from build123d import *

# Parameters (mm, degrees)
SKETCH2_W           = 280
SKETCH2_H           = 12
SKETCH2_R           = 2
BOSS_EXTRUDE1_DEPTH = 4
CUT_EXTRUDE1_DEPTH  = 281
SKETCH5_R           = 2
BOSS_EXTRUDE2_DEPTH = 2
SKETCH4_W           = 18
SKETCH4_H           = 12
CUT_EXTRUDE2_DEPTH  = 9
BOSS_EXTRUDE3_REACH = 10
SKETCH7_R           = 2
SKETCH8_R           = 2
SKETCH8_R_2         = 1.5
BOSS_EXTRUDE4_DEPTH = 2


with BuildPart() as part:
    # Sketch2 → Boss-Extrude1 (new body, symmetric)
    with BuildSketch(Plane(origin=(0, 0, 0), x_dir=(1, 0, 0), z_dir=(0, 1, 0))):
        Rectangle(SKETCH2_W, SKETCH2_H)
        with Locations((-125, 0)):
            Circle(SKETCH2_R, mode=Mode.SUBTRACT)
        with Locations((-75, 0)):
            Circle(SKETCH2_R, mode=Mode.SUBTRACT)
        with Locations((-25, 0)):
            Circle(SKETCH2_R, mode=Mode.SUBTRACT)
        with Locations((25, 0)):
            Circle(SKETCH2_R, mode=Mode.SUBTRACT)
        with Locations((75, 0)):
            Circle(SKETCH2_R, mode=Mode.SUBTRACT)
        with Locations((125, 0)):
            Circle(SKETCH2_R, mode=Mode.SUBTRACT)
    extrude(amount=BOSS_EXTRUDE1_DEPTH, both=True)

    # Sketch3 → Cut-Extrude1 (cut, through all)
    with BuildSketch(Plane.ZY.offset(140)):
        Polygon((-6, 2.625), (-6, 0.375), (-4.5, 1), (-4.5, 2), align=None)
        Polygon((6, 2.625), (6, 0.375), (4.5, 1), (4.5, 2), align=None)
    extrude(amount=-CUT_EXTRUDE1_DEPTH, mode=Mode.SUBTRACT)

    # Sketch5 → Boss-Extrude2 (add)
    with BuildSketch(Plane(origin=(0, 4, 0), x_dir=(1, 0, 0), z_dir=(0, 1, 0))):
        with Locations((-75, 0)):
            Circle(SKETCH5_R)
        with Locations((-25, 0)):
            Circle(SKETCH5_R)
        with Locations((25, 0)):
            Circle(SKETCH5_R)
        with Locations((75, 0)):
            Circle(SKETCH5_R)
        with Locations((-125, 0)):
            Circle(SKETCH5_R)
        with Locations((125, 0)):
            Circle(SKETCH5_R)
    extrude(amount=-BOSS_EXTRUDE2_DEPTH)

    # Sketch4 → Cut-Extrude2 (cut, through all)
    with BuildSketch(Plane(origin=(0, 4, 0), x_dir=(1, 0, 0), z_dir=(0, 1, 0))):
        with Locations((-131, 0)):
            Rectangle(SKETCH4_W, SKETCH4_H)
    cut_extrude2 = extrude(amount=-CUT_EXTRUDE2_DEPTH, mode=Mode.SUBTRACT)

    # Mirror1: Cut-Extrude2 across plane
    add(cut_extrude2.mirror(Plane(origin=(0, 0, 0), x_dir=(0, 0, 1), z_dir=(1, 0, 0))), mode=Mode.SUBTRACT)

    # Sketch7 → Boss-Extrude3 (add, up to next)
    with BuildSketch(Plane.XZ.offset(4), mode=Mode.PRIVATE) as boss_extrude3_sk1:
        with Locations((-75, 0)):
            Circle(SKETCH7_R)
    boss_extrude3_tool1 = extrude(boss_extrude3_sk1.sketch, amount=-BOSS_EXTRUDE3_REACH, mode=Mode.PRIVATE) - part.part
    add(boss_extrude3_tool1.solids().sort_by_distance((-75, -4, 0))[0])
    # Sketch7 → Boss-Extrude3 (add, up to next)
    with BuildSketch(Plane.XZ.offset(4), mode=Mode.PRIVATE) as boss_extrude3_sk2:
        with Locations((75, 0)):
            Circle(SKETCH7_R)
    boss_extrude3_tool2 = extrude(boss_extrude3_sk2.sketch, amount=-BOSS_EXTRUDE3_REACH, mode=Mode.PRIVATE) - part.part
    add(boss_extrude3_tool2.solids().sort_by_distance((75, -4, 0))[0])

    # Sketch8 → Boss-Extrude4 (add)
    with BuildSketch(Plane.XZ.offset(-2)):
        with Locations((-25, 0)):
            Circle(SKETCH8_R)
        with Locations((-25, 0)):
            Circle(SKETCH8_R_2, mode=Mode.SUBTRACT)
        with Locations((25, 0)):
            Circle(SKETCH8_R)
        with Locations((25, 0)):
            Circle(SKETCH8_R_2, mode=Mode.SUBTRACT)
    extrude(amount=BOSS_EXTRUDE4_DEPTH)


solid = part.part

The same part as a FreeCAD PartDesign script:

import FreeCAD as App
import Part
import Sketcher

V = App.Vector
Q = App.Units.Quantity

doc = App.newDocument("Part")
body = doc.addObject("PartDesign::Body", "Body")

sketch1 = body.newObject("Sketcher::SketchObject", "Sketch")
sketch1.AttachmentSupport = (doc.getObject("XZ_Plane"), [""])
sketch1.MapMode = "FlatFace"
sketch1.addGeometry([
    Part.LineSegment(V(-140, -6, 0), V(-140, 6, 0)),
    Part.LineSegment(V(-140, 6, 0), V(140, 6, 0)),
    Part.LineSegment(V(140, 6, 0), V(140, -6, 0)),
    Part.LineSegment(V(140, -6, 0), V(-140, -6, 0)),
    Part.Circle(V(-125, 0, 0), V(0, 0, 1), 2),
    Part.Circle(V(-75, 0, 0), V(0, 0, 1), 2),
    Part.Circle(V(-25, 0, 0), V(0, 0, 1), 2),
    Part.Circle(V(25, 0, 0), V(0, 0, 1), 2),
    Part.Circle(V(75, 0, 0), V(0, 0, 1), 2),
    Part.Circle(V(125, 0, 0), V(0, 0, 1), 2),
], False)
sketch1.addConstraint([
    Sketcher.Constraint("Coincident", 0, 2, 1, 1),
    Sketcher.Constraint("Coincident", 1, 2, 2, 1),
    Sketcher.Constraint("Coincident", 2, 2, 3, 1),
    Sketcher.Constraint("Coincident", 3, 2, 0, 1),
    Sketcher.Constraint("Vertical", 0),
    Sketcher.Constraint("Horizontal", 1),
    Sketcher.Constraint("Vertical", 2),
    Sketcher.Constraint("Horizontal", 3),
    Sketcher.Constraint("Equal", 4, 5),
    Sketcher.Constraint("Equal", 5, 6),
    Sketcher.Constraint("Equal", 6, 7),
    Sketcher.Constraint("Equal", 7, 8),
    Sketcher.Constraint("Equal", 8, 9),
    Sketcher.Constraint("Symmetric", 6, 3, 7, 3, -1, 1),
    Sketcher.Constraint("Symmetric", 5, 3, 8, 3, -1, 1),
    Sketcher.Constraint("Symmetric", 4, 3, 9, 3, -1, 1),
    Sketcher.Constraint("Symmetric", 0, 2, 2, 2, -1, 1),
    Sketcher.Constraint("PointOnObject", 4, 3, -1),
    Sketcher.Constraint("PointOnObject", 5, 3, -1),
    Sketcher.Constraint("PointOnObject", 6, 3, -1),
    Sketcher.Constraint("Diameter", 4, Q("4 mm")),
    Sketcher.Constraint("DistanceX", 1, 1, 1, 2, Q("280 mm")),
    Sketcher.Constraint("DistanceY", 0, 1, 0, 2, Q("12 mm")),
    Sketcher.Constraint("DistanceX", 4, 3, -1, 1, Q("125 mm")),
    Sketcher.Constraint("DistanceX", 5, 3, -1, 1, Q("75 mm")),
    Sketcher.Constraint("DistanceX", 6, 3, -1, 1, Q("25 mm")),
])
pad1 = body.newObject("PartDesign::Pad", "Pad")
pad1.Profile = sketch1
pad1.Length = 8
pad1.Midplane = True

sketch2 = body.newObject("Sketcher::SketchObject", "Sketch001")
sketch2.AttachmentSupport = (doc.getObject("YZ_Plane"), [""])
sketch2.MapMode = "FlatFace"
sketch2.AttachmentOffset = App.Placement(V(0, 0, -140), App.Rotation())
sketch2.addGeometry([
    Part.LineSegment(V(2.6, -6, 0), V(0.4, -6, 0)),
    Part.LineSegment(V(0.4, -6, 0), V(1, -4.5, 0)),
    Part.LineSegment(V(1, -4.5, 0), V(2, -4.5, 0)),
    Part.LineSegment(V(2, -4.5, 0), V(2.6, -6, 0)),
    Part.LineSegment(V(0.4, 6, 0), V(2.6, 6, 0)),
    Part.LineSegment(V(2.6, 6, 0), V(2, 4.5, 0)),
    Part.LineSegment(V(2, 4.5, 0), V(1, 4.5, 0)),
    Part.LineSegment(V(1, 4.5, 0), V(0.4, 6, 0)),
], False)
sketch2.addConstraint([
    Sketcher.Constraint("Coincident", 0, 2, 1, 1),
    Sketcher.Constraint("Coincident", 1, 2, 2, 1),
    Sketcher.Constraint("Coincident", 2, 2, 3, 1),
    Sketcher.Constraint("Coincident", 3, 2, 0, 1),
    Sketcher.Constraint("Coincident", 4, 2, 5, 1),
    Sketcher.Constraint("Coincident", 5, 2, 6, 1),
    Sketcher.Constraint("Coincident", 6, 2, 7, 1),
    Sketcher.Constraint("Coincident", 7, 2, 4, 1),
    Sketcher.Constraint("Horizontal", 0),
    Sketcher.Constraint("Horizontal", 2),
    Sketcher.Constraint("Horizontal", 4),
    Sketcher.Constraint("Horizontal", 6),
    Sketcher.Constraint("Symmetric", 3, 2, 4, 2, -1),
    Sketcher.Constraint("Symmetric", 2, 2, 5, 2, -1),
    Sketcher.Constraint("Parallel", 1, 5),
    Sketcher.Constraint("Parallel", 3, 7),
    Sketcher.Constraint("Vertical", 1, 2, 6, 2),
    Sketcher.Constraint("DistanceX", 2, 1, 2, 2, Q("1 mm")),
    Sketcher.Constraint("DistanceY", 0, 2, -1, 1, Q("6 mm")),
    Sketcher.Constraint("DistanceX", -1, 1, 1, 2, Q("1 mm")),
    Sketcher.Constraint("DistanceY", 2, 2, 5, 2, Q("9 mm")),
    Sketcher.Constraint("DistanceX", 0, 2, 0, 1, Q("2.25 mm")),
])
pocket1 = body.newObject("PartDesign::Pocket", "Pocket")
pocket1.Profile = sketch2
pocket1.Type = "ThroughAll"
pocket1.Reversed = True

sketch3 = body.newObject("Sketcher::SketchObject", "Sketch002")
sketch3.AttachmentSupport = (doc.getObject("XZ_Plane"), [""])
sketch3.MapMode = "FlatFace"
sketch3.AttachmentOffset = App.Placement(V(0, 0, -4), App.Rotation())
sketch3.addGeometry([
    Part.Circle(V(-75, 0, 0), V(0, 0, 1), 2),
    Part.Circle(V(-25, 0, 0), V(0, 0, 1), 2),
    Part.Circle(V(25, 0, 0), V(0, 0, 1), 2),
    Part.Circle(V(75, 0, 0), V(0, 0, 1), 2),
    Part.Circle(V(-125, 0, 0), V(0, 0, 1), 2),
    Part.Circle(V(125, 0, 0), V(0, 0, 1), 2),
], False)
sketch3.addConstraint([
    Sketcher.Constraint("Equal", 0, 1),
    Sketcher.Constraint("Equal", 1, 2),
    Sketcher.Constraint("Equal", 2, 3),
    Sketcher.Constraint("Equal", 3, 4),
    Sketcher.Constraint("Equal", 4, 5),
    Sketcher.Constraint("Symmetric", 1, 3, 2, 3, -1, 1),
    Sketcher.Constraint("Symmetric", 0, 3, 3, 3, -1, 1),
    Sketcher.Constraint("Symmetric", 4, 3, 5, 3, -1, 1),
    Sketcher.Constraint("PointOnObject", 0, 3, -1),
    Sketcher.Constraint("PointOnObject", 1, 3, -1),
    Sketcher.Constraint("PointOnObject", 4, 3, -1),
    Sketcher.Constraint("Diameter", 0, Q("4 mm")),
    Sketcher.Constraint("DistanceX", 0, 3, -1, 1, Q("75 mm")),
    Sketcher.Constraint("DistanceX", 1, 3, -1, 1, Q("25 mm")),
    Sketcher.Constraint("DistanceX", 4, 3, -1, 1, Q("125 mm")),
])
pad2 = body.newObject("PartDesign::Pad", "Pad001")
pad2.Profile = sketch3
pad2.Length = 2

sketch4 = body.newObject("Sketcher::SketchObject", "Sketch003")
sketch4.AttachmentSupport = (doc.getObject("XZ_Plane"), [""])
sketch4.MapMode = "FlatFace"
sketch4.AttachmentOffset = App.Placement(V(0, 0, -4), App.Rotation())
sketch4.addGeometry([
    Part.LineSegment(V(-140, -6, 0), V(-140, 6, 0)),
    Part.LineSegment(V(-140, 6, 0), V(-122, 6, 0)),
    Part.LineSegment(V(-122, 6, 0), V(-122, -6, 0)),
    Part.LineSegment(V(-122, -6, 0), V(-140, -6, 0)),
], False)
sketch4.addConstraint([
    Sketcher.Constraint("Coincident", 0, 2, 1, 1),
    Sketcher.Constraint("Coincident", 1, 2, 2, 1),
    Sketcher.Constraint("Coincident", 2, 2, 3, 1),
    Sketcher.Constraint("Coincident", 3, 2, 0, 1),
    Sketcher.Constraint("Vertical", 0),
    Sketcher.Constraint("Horizontal", 1),
    Sketcher.Constraint("Vertical", 2),
    Sketcher.Constraint("Horizontal", 3),
    Sketcher.Constraint("DistanceX", 1, 1, 1, 2, Q("18 mm")),
    Sketcher.Constraint("DistanceY", 0, 1, 0, 2, Q("12 mm")),
    Sketcher.Constraint("DistanceX", 0, 2, -1, 1, Q("140 mm")),
    Sketcher.Constraint("DistanceY", -1, 1, 0, 2, Q("6 mm")),
])
pocket2 = body.newObject("PartDesign::Pocket", "Pocket001")
pocket2.Profile = sketch4
pocket2.Type = "ThroughAll"
pocket2.Reversed = True
doc.recompute()

mirrored = body.newObject("PartDesign::Mirrored", "Mirrored")
mirrored.Originals = [pocket2]
mirrored.MirrorPlane = (doc.getObject("YZ_Plane"), [""])
body.Tip = mirrored

sketch5 = body.newObject("Sketcher::SketchObject", "Sketch004")
sketch5.AttachmentSupport = (doc.getObject("XZ_Plane"), [""])
sketch5.MapMode = "FlatFace"
sketch5.AttachmentOffset = App.Placement(V(0, 0, 4), App.Rotation())
sketch5.addGeometry(Part.Circle(V(-75, 0, 0), V(0, 0, 1), 2), False)
sketch5.addConstraint([
    Sketcher.Constraint("PointOnObject", 0, 3, -1),
    Sketcher.Constraint("Diameter", 0, Q("4 mm")),
    Sketcher.Constraint("DistanceX", 0, 3, -1, 1, Q("75 mm")),
])
pad3 = body.newObject("PartDesign::Pad", "Pad002")
pad3.Profile = sketch5
pad3.Type = "UpToFirst"
pad3.Reversed = True

sketch6 = body.newObject("Sketcher::SketchObject", "Sketch005")
sketch6.AttachmentSupport = (doc.getObject("XZ_Plane"), [""])
sketch6.MapMode = "FlatFace"
sketch6.AttachmentOffset = App.Placement(V(0, 0, 4), App.Rotation())
sketch6.addGeometry(Part.Circle(V(75, 0, 0), V(0, 0, 1), 2), False)
sketch6.addConstraint([
    Sketcher.Constraint("PointOnObject", 0, 3, -1),
    Sketcher.Constraint("Diameter", 0, Q("4 mm")),
    Sketcher.Constraint("DistanceX", -1, 1, 0, 3, Q("75 mm")),
])
pad4 = body.newObject("PartDesign::Pad", "Pad003")
pad4.Profile = sketch6
pad4.Type = "UpToFirst"
pad4.Reversed = True

sketch7 = body.newObject("Sketcher::SketchObject", "Sketch006")
sketch7.AttachmentSupport = (doc.getObject("XZ_Plane"), [""])
sketch7.MapMode = "FlatFace"
sketch7.AttachmentOffset = App.Placement(V(0, 0, -2), App.Rotation())
sketch7.addGeometry([
    Part.Circle(V(-25, 0, 0), V(0, 0, 1), 2),
    Part.Circle(V(-25, 0, 0), V(0, 0, 1), 1.5),
    Part.Circle(V(25, 0, 0), V(0, 0, 1), 2),
    Part.Circle(V(25, 0, 0), V(0, 0, 1), 1.5),
], False)
sketch7.addConstraint([
    Sketcher.Constraint("Coincident", 1, 3, 0, 3),
    Sketcher.Constraint("Coincident", 3, 3, 2, 3),
    Sketcher.Constraint("Equal", 0, 2),
    Sketcher.Constraint("Equal", 1, 3),
    Sketcher.Constraint("Symmetric", 0, 3, 2, 3, -1, 1),
    Sketcher.Constraint("PointOnObject", 0, 3, -1),
    Sketcher.Constraint("Diameter", 0, Q("4 mm")),
    Sketcher.Constraint("Diameter", 1, Q("3 mm")),
    Sketcher.Constraint("DistanceX", 0, 3, -1, 1, Q("25 mm")),
])
pad5 = body.newObject("PartDesign::Pad", "Pad004")
pad5.Profile = sketch7
pad5.Length = 2

doc.recompute()
